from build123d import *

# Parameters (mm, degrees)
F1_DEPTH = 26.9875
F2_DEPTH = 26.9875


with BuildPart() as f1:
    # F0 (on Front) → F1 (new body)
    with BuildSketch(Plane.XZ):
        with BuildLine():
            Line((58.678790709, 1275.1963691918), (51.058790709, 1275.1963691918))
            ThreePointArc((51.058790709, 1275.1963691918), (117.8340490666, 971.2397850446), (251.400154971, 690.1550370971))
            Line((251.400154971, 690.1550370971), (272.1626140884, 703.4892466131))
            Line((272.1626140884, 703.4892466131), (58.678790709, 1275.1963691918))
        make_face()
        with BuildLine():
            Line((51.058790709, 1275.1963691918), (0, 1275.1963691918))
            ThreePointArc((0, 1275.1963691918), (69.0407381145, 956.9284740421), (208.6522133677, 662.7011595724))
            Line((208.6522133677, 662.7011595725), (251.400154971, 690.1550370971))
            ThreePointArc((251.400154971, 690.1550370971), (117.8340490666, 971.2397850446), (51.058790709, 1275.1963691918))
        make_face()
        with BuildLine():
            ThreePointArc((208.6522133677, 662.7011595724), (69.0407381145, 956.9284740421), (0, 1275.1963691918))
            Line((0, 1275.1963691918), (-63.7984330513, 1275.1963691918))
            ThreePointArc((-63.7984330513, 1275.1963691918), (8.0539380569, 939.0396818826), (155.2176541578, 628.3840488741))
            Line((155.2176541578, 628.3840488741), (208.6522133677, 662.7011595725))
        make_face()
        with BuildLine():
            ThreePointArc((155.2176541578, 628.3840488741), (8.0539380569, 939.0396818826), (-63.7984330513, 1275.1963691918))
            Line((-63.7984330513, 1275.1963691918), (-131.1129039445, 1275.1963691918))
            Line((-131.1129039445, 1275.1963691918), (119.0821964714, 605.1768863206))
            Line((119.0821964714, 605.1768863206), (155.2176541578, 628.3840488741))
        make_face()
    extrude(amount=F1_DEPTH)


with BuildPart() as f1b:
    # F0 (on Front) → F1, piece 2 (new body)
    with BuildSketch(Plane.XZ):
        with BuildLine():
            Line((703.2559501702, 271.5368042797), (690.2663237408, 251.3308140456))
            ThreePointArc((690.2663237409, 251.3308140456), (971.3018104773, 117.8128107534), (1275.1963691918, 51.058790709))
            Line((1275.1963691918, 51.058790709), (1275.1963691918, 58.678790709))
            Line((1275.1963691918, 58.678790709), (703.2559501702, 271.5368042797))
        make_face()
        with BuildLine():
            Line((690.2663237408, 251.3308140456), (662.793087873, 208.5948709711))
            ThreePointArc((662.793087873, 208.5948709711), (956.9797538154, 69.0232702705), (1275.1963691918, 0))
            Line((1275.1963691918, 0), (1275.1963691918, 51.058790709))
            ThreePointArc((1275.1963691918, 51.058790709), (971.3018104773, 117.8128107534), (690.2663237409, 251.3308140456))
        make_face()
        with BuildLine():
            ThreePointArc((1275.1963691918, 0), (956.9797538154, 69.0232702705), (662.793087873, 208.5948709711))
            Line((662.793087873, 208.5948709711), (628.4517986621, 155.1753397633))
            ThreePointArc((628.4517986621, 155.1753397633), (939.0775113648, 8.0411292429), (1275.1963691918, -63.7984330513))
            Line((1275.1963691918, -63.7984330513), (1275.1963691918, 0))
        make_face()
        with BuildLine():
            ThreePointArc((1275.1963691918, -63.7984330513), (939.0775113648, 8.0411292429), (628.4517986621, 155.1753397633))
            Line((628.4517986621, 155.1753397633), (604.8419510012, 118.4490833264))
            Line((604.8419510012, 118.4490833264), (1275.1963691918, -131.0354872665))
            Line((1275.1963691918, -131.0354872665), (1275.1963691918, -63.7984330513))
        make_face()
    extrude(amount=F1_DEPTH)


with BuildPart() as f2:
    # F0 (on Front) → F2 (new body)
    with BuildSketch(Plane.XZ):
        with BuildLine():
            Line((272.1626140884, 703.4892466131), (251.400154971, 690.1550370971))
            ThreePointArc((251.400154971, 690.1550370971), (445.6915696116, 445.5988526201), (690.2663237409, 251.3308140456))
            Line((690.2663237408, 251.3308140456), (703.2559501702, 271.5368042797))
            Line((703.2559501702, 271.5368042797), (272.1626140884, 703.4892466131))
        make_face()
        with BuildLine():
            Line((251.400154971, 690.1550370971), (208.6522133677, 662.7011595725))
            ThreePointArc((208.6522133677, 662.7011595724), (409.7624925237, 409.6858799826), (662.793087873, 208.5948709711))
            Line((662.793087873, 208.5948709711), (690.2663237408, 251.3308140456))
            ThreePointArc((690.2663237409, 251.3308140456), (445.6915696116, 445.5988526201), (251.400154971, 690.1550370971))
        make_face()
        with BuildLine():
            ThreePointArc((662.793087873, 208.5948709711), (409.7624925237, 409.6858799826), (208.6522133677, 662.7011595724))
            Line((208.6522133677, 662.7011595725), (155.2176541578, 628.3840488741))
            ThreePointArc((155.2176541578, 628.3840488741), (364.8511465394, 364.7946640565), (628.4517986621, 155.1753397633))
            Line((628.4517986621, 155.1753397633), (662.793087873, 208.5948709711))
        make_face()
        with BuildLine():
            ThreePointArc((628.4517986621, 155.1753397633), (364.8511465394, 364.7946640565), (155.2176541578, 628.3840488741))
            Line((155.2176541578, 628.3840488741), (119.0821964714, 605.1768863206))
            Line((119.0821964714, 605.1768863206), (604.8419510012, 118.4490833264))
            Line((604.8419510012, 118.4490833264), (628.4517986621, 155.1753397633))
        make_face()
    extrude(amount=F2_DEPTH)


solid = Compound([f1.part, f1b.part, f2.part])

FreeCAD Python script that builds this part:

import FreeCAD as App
import Part
import Sketcher
Q = App.Units.Quantity


def add_polygon(sketch, points):
    """Adds a closed chain of lines whose ends are joined by coincident constraints."""
    first, n = sketch.GeometryCount, len(points)
    for a, b in zip(points, points[1:] + points[:1]):
        sketch.addGeometry(Part.LineSegment(App.Vector(*a, 0), App.Vector(*b, 0)), False)
    for i in range(n):
        sketch.addConstraint(Sketcher.Constraint("Coincident", first + i, 2, first + (i + 1) % n, 1))

doc = App.newDocument("Part")
body = doc.addObject("PartDesign::Body", "Body")

# Sketch on XZ plane
sketch1 = body.newObject("Sketcher::SketchObject", "Sketch")
sketch1.AttachmentSupport = (doc.getObject("XZ_Plane"), [""])
sketch1.MapMode = "FlatFace"
add_polygon(sketch1, [(59, 1275), (-131, 1275), (119, 605), (155, 628), (251, 690), (272, 703)])  # lines 0-5
sketch1.addConstraint([
    Sketcher.Constraint("Horizontal", 0),
    Sketcher.Constraint("Parallel", 2, 3),
    Sketcher.Constraint("Parallel", 3, 4),
    Sketcher.Constraint("Parallel", 1, 5),
    Sketcher.Constraint("DistanceX", 0, 2, 1, 2, Q("250.1951 mm")),
    Sketcher.Constraint("DistanceX", 2, 2, 3, 2, Q("96.182501 mm")),
    Sketcher.Constraint("Distance", 3, Q("114.309792 mm")),
    Sketcher.Constraint("Distance", 4, Q("24.675511 mm")),
    Sketcher.Constraint("DistanceX", 0, 2, 0, 1, Q("189.791695 mm")),
    Sketcher.Constraint("DistanceY", -1, 1, 0, 2, Q("1275.196369 mm")),
    Sketcher.Constraint("DistanceY", -1, 1, 2, 2, Q("628.384049 mm")),
    Sketcher.Constraint("DistanceX", -1, 1, 5, 2, Q("58.678791 mm")),
])
pad1 = body.newObject("PartDesign::Pad", "Pad")
pad1.Profile = sketch1
pad1.Length = Q("1.0625 in")
body2 = doc.addObject("PartDesign::Body", "Body001")

# Sketch on XZ plane
sketch2 = body2.newObject("Sketcher::SketchObject", "Sketch001")
sketch2.AttachmentSupport = (doc.getObject("XZ_Plane001"), [""])
sketch2.MapMode = "FlatFace"
add_polygon(sketch2, [(703, 272), (605, 118), (1275, -131), (1275, 59)])  # lines 0-3
sketch2.addConstraint([
    Sketcher.Constraint("Vertical", 2),
    Sketcher.Constraint("Parallel", 1, 3),
    Sketcher.Constraint("DistanceX", 0, 2, 3, 2, Q("98.413999 mm")),
    Sketcher.Constraint("Distance", 1, Q("715.274491 mm")),
    Sketcher.Constraint("DistanceY", 2, 1, 2, 2, Q("189.714278 mm")),
    Sketcher.Constraint("DistanceX", -1, 1, 0, 2, Q("604.841951 mm")),
    Sketcher.Constraint("DistanceX", -1, 1, 1, 2, Q("1275.196369 mm")),
    Sketcher.Constraint("DistanceY", -1, 1, 2, 2, Q("58.678791 mm")),
])
pad2 = body2.newObject("PartDesign::Pad", "Pad001")
pad2.Profile = sketch2
pad2.Length = Q("1.0625 in")
body3 = doc.addObject("PartDesign::Body", "Body002")

# Sketch on XZ plane
sketch3 = body3.newObject("Sketcher::SketchObject", "Sketch002")
sketch3.AttachmentSupport = (doc.getObject("XZ_Plane002"), [""])
sketch3.MapMode = "FlatFace"
add_polygon(sketch3, [(272, 703), (251, 690), (155, 628), (119, 605), (605, 118), (703, 272)])  # lines 0-5
sketch3.addConstraint([
    Sketcher.Constraint("Parallel", 0, 1),
    Sketcher.Constraint("Parallel", 1, 2),
    Sketcher.Constraint("Parallel", 3, 5),
    Sketcher.Constraint("DistanceX", 1, 2, 0, 2, Q("96.182501 mm")),
    Sketcher.Constraint("DistanceX", 3, 2, 4, 2, Q("98.413999 mm")),
    Sketcher.Constraint("Distance", 0, Q("24.675511 mm")),
    Sketcher.Constraint("Distance", 1, Q("114.309792 mm")),
    Sketcher.Constraint("DistanceY", -1, 1, 1, 2, Q("628.384049 mm")),
    Sketcher.Constraint("DistanceX", -1, 1, 3, 2, Q("604.841951 mm")),
    Sketcher.Constraint("DistanceX", 2, 2, 0, 2, Q("132.317959 mm")),
    Sketcher.Constraint("DistanceY", 3, 2, 4, 2, Q("153.087721 mm")),
    Sketcher.Constraint("Distance", 3, Q("687.652887 mm")),
])
pad3 = body3.newObject("PartDesign::Pad", "Pad002")
pad3.Profile = sketch3
pad3.Length = Q("1.0625 in")

doc.recompute()
